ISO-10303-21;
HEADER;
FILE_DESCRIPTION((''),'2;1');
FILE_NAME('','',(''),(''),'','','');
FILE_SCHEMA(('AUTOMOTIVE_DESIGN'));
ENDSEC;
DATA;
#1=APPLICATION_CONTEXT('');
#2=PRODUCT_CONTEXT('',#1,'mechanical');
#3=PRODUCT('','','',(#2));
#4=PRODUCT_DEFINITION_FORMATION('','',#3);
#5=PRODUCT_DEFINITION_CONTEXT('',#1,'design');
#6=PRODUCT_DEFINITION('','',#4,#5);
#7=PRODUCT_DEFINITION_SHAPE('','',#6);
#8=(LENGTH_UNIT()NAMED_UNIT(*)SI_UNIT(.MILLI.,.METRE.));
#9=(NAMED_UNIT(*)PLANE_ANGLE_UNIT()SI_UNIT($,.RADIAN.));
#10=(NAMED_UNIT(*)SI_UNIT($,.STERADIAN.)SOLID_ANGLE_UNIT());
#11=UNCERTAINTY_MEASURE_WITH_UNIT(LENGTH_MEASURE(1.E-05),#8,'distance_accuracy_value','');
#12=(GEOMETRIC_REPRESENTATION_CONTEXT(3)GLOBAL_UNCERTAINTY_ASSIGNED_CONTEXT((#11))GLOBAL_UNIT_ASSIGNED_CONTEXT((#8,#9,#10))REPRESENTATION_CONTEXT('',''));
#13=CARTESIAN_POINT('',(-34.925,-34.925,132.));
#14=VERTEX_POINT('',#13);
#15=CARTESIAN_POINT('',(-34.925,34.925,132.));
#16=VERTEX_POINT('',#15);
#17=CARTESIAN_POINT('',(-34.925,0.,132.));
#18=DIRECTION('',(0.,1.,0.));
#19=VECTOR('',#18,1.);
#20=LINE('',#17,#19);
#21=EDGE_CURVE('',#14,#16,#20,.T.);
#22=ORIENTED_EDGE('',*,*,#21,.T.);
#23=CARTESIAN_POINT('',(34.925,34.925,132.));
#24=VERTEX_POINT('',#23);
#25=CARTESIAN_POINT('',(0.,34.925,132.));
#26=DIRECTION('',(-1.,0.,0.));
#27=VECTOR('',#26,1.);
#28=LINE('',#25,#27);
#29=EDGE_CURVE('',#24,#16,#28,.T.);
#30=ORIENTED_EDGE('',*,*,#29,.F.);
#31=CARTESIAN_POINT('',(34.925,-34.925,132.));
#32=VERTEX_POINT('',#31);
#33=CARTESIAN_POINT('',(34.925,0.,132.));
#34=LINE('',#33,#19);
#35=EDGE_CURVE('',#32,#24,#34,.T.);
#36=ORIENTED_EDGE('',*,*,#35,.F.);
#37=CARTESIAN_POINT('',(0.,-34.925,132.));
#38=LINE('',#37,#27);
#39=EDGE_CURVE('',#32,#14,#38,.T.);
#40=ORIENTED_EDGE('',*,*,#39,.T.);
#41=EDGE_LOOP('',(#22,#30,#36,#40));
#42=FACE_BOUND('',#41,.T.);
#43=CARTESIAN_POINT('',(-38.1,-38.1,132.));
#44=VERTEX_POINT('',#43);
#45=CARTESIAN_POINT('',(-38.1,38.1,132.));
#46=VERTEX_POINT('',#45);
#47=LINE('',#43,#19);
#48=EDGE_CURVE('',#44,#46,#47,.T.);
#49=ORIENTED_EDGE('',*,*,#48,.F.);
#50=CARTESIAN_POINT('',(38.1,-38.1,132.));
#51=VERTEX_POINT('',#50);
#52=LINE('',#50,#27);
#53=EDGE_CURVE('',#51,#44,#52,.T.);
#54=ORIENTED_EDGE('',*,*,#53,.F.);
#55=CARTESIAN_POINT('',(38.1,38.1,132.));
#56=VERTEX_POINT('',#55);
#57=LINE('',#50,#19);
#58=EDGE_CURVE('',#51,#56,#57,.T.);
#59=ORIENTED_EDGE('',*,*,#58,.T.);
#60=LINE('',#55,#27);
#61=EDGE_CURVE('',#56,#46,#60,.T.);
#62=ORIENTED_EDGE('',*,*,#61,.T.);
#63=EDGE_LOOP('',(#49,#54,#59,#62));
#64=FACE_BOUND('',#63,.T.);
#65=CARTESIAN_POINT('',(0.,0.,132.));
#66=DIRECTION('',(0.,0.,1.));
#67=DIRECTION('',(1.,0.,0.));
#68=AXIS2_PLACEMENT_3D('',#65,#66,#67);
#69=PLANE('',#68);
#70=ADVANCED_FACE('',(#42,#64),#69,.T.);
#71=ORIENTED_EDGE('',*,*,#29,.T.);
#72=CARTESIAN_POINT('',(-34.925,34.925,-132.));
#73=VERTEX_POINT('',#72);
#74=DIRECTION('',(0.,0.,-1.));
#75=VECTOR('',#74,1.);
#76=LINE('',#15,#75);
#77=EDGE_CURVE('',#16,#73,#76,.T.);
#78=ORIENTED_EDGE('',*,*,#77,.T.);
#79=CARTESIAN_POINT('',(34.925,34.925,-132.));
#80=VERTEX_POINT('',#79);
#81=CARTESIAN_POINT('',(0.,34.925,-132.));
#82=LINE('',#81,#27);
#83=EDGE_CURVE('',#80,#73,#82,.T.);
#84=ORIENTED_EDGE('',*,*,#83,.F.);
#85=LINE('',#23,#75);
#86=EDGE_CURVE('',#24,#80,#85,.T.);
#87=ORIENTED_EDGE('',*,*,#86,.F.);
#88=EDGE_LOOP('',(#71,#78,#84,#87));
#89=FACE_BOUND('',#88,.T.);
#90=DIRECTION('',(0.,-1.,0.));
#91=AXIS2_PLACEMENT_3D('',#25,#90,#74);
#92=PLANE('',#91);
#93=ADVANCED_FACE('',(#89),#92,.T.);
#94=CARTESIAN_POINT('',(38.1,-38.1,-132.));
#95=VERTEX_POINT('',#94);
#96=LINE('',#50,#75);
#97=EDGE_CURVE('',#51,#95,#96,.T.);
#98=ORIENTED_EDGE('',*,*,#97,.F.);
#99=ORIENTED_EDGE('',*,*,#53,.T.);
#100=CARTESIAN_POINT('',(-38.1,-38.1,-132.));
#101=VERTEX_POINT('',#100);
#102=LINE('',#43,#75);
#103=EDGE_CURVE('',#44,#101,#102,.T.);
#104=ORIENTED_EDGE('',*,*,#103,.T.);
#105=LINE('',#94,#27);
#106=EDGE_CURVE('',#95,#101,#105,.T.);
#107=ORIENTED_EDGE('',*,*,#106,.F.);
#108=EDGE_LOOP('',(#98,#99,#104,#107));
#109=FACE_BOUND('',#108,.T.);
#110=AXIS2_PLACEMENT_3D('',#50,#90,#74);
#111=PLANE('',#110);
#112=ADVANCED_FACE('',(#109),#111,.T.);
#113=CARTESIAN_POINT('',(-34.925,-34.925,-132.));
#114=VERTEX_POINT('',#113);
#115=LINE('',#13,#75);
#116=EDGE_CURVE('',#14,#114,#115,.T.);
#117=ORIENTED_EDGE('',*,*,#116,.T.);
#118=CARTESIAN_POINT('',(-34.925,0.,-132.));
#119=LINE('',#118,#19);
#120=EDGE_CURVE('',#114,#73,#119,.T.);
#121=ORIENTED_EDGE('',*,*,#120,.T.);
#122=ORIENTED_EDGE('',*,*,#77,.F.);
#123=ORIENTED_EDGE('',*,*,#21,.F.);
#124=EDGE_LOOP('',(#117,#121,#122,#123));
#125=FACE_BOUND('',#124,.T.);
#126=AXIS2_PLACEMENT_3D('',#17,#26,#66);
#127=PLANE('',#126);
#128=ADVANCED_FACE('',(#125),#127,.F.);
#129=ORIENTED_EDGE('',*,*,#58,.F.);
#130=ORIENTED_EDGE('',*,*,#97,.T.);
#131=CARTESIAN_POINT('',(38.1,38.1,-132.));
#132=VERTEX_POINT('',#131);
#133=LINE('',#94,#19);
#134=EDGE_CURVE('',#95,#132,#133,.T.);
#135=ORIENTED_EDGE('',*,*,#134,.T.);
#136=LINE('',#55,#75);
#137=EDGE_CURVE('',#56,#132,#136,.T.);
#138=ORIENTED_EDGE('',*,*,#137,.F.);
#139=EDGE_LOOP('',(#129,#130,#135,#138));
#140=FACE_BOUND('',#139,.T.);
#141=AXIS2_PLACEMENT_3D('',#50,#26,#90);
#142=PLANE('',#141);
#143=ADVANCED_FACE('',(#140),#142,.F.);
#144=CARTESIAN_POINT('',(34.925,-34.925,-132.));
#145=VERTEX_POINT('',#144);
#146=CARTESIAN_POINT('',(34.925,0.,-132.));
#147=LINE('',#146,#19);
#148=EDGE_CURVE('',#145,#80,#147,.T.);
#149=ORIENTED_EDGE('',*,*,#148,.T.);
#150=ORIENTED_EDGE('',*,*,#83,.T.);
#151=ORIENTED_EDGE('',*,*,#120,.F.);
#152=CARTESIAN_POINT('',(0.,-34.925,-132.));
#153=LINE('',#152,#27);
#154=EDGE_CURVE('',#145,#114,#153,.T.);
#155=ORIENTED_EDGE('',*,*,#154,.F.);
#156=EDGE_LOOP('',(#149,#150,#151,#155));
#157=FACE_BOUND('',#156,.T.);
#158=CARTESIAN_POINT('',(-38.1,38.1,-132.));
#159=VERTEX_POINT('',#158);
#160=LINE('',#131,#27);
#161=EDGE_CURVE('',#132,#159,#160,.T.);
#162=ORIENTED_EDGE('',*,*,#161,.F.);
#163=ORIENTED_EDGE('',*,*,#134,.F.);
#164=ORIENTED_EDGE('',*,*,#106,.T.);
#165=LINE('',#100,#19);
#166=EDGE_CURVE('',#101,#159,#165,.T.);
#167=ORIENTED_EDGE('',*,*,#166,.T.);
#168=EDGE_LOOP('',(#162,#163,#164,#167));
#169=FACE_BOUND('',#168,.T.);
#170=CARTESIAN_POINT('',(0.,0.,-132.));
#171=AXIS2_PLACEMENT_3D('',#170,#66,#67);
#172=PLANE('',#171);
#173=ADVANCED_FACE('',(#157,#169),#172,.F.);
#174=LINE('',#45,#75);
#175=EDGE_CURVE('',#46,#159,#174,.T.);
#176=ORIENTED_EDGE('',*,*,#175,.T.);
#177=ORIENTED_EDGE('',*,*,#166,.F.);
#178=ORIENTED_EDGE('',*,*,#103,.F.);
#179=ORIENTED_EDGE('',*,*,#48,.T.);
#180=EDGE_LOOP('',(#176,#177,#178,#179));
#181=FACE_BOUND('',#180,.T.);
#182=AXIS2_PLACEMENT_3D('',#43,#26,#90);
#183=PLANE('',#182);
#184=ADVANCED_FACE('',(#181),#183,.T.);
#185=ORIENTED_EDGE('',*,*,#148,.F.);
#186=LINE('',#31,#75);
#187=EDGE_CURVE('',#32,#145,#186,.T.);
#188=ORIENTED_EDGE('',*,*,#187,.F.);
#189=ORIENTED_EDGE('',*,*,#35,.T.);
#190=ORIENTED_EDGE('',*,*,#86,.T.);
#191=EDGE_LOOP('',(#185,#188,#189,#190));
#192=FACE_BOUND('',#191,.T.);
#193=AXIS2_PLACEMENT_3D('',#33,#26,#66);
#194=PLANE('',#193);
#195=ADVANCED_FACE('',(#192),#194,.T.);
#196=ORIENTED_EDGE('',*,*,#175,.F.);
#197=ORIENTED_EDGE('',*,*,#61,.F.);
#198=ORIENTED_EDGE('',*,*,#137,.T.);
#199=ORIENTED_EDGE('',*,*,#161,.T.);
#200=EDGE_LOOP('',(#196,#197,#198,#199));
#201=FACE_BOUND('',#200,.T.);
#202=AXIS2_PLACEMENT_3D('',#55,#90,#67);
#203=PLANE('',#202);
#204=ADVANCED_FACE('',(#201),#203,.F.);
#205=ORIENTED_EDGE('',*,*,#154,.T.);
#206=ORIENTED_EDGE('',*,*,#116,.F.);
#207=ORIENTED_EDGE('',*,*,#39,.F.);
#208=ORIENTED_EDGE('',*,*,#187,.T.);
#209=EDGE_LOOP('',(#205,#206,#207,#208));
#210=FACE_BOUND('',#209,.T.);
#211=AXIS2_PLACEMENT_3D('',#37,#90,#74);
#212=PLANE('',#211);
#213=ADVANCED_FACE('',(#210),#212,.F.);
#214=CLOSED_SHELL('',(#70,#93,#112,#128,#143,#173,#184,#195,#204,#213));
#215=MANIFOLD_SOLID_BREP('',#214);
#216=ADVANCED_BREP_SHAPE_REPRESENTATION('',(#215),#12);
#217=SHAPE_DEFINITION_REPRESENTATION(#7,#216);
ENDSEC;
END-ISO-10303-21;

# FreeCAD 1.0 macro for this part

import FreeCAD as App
import Part
import Sketcher
Q = App.Units.Quantity

doc = App.newDocument("Part")
body = doc.addObject("PartDesign::Body", "Body")

# Sketch on XY plane
sketch1 = body.newObject("Sketcher::SketchObject", "Sketch")
sketch1.AttachmentSupport = (doc.getObject("XY_Plane"), [""])
sketch1.MapMode = "FlatFace"
sketch1.addGeometry(Part.LineSegment(App.Vector(-38, 38, 0), App.Vector(-38, -38, 0)), False)
sketch1.addGeometry(Part.LineSegment(App.Vector(-38, -38, 0), App.Vector(38, -38, 0)), False)
sketch1.addGeometry(Part.LineSegment(App.Vector(38, -38, 0), App.Vector(38, 38, 0)), False)
sketch1.addGeometry(Part.LineSegment(App.Vector(38, 38, 0), App.Vector(-38, 38, 0)), False)
sketch1.addGeometry(Part.LineSegment(App.Vector(35, -35, 0), App.Vector(-35, -35, 0)), False)
sketch1.addGeometry(Part.LineSegment(App.Vector(-35, -35, 0), App.Vector(-35, 35, 0)), False)
sketch1.addGeometry(Part.LineSegment(App.Vector(-35, 35, 0), App.Vector(35, 35, 0)), False)
sketch1.addGeometry(Part.LineSegment(App.Vector(35, 35, 0), App.Vector(35, -35, 0)), False)
sketch1.addConstraint(Sketcher.Constraint("Coincident", 0, 2, 1, 1))
sketch1.addConstraint(Sketcher.Constraint("Coincident", 1, 2, 2, 1))
sketch1.addConstraint(Sketcher.Constraint("Coincident", 2, 2, 3, 1))
sketch1.addConstraint(Sketcher.Constraint("Coincident", 3, 2, 0, 1))
sketch1.addConstraint(Sketcher.Constraint("Coincident", 4, 2, 5, 1))
sketch1.addConstraint(Sketcher.Constraint("Coincident", 5, 2, 6, 1))
sketch1.addConstraint(Sketcher.Constraint("Coincident", 6, 2, 7, 1))
sketch1.addConstraint(Sketcher.Constraint("Coincident", 7, 2, 4, 1))
sketch1.addConstraint(Sketcher.Constraint("Vertical", 0))
sketch1.addConstraint(Sketcher.Constraint("Horizontal", 1))
sketch1.addConstraint(Sketcher.Constraint("Vertical", 2))
sketch1.addConstraint(Sketcher.Constraint("Horizontal", 3))
sketch1.addConstraint(Sketcher.Constraint("Horizontal", 4))
sketch1.addConstraint(Sketcher.Constraint("Vertical", 5))
sketch1.addConstraint(Sketcher.Constraint("Horizontal", 6))
sketch1.addConstraint(Sketcher.Constraint("Vertical", 7))
sketch1.addConstraint(Sketcher.Constraint("Symmetric", 0, 2, 2, 2, -1, 1))
sketch1.addConstraint(Sketcher.Constraint("Symmetric", 4, 2, 6, 2, -1, 1))
sketch1.addConstraint(Sketcher.Constraint("Equal", 3, 0))
sketch1.addConstraint(Sketcher.Constraint("Equal", 6, 5))
sketch1.addConstraint(Sketcher.Constraint("DistanceX", 1, 1, 1, 2, Q("3 in")))
sketch1.addConstraint(Sketcher.Constraint("DistanceX", 4, 2, 4, 1, Q("2.75 in")))
pad1 = body.newObject("PartDesign::Pad", "Pad")
pad1.Profile = sketch1
pad1.Length = 264
pad1.Midplane = True

doc.recompute()
